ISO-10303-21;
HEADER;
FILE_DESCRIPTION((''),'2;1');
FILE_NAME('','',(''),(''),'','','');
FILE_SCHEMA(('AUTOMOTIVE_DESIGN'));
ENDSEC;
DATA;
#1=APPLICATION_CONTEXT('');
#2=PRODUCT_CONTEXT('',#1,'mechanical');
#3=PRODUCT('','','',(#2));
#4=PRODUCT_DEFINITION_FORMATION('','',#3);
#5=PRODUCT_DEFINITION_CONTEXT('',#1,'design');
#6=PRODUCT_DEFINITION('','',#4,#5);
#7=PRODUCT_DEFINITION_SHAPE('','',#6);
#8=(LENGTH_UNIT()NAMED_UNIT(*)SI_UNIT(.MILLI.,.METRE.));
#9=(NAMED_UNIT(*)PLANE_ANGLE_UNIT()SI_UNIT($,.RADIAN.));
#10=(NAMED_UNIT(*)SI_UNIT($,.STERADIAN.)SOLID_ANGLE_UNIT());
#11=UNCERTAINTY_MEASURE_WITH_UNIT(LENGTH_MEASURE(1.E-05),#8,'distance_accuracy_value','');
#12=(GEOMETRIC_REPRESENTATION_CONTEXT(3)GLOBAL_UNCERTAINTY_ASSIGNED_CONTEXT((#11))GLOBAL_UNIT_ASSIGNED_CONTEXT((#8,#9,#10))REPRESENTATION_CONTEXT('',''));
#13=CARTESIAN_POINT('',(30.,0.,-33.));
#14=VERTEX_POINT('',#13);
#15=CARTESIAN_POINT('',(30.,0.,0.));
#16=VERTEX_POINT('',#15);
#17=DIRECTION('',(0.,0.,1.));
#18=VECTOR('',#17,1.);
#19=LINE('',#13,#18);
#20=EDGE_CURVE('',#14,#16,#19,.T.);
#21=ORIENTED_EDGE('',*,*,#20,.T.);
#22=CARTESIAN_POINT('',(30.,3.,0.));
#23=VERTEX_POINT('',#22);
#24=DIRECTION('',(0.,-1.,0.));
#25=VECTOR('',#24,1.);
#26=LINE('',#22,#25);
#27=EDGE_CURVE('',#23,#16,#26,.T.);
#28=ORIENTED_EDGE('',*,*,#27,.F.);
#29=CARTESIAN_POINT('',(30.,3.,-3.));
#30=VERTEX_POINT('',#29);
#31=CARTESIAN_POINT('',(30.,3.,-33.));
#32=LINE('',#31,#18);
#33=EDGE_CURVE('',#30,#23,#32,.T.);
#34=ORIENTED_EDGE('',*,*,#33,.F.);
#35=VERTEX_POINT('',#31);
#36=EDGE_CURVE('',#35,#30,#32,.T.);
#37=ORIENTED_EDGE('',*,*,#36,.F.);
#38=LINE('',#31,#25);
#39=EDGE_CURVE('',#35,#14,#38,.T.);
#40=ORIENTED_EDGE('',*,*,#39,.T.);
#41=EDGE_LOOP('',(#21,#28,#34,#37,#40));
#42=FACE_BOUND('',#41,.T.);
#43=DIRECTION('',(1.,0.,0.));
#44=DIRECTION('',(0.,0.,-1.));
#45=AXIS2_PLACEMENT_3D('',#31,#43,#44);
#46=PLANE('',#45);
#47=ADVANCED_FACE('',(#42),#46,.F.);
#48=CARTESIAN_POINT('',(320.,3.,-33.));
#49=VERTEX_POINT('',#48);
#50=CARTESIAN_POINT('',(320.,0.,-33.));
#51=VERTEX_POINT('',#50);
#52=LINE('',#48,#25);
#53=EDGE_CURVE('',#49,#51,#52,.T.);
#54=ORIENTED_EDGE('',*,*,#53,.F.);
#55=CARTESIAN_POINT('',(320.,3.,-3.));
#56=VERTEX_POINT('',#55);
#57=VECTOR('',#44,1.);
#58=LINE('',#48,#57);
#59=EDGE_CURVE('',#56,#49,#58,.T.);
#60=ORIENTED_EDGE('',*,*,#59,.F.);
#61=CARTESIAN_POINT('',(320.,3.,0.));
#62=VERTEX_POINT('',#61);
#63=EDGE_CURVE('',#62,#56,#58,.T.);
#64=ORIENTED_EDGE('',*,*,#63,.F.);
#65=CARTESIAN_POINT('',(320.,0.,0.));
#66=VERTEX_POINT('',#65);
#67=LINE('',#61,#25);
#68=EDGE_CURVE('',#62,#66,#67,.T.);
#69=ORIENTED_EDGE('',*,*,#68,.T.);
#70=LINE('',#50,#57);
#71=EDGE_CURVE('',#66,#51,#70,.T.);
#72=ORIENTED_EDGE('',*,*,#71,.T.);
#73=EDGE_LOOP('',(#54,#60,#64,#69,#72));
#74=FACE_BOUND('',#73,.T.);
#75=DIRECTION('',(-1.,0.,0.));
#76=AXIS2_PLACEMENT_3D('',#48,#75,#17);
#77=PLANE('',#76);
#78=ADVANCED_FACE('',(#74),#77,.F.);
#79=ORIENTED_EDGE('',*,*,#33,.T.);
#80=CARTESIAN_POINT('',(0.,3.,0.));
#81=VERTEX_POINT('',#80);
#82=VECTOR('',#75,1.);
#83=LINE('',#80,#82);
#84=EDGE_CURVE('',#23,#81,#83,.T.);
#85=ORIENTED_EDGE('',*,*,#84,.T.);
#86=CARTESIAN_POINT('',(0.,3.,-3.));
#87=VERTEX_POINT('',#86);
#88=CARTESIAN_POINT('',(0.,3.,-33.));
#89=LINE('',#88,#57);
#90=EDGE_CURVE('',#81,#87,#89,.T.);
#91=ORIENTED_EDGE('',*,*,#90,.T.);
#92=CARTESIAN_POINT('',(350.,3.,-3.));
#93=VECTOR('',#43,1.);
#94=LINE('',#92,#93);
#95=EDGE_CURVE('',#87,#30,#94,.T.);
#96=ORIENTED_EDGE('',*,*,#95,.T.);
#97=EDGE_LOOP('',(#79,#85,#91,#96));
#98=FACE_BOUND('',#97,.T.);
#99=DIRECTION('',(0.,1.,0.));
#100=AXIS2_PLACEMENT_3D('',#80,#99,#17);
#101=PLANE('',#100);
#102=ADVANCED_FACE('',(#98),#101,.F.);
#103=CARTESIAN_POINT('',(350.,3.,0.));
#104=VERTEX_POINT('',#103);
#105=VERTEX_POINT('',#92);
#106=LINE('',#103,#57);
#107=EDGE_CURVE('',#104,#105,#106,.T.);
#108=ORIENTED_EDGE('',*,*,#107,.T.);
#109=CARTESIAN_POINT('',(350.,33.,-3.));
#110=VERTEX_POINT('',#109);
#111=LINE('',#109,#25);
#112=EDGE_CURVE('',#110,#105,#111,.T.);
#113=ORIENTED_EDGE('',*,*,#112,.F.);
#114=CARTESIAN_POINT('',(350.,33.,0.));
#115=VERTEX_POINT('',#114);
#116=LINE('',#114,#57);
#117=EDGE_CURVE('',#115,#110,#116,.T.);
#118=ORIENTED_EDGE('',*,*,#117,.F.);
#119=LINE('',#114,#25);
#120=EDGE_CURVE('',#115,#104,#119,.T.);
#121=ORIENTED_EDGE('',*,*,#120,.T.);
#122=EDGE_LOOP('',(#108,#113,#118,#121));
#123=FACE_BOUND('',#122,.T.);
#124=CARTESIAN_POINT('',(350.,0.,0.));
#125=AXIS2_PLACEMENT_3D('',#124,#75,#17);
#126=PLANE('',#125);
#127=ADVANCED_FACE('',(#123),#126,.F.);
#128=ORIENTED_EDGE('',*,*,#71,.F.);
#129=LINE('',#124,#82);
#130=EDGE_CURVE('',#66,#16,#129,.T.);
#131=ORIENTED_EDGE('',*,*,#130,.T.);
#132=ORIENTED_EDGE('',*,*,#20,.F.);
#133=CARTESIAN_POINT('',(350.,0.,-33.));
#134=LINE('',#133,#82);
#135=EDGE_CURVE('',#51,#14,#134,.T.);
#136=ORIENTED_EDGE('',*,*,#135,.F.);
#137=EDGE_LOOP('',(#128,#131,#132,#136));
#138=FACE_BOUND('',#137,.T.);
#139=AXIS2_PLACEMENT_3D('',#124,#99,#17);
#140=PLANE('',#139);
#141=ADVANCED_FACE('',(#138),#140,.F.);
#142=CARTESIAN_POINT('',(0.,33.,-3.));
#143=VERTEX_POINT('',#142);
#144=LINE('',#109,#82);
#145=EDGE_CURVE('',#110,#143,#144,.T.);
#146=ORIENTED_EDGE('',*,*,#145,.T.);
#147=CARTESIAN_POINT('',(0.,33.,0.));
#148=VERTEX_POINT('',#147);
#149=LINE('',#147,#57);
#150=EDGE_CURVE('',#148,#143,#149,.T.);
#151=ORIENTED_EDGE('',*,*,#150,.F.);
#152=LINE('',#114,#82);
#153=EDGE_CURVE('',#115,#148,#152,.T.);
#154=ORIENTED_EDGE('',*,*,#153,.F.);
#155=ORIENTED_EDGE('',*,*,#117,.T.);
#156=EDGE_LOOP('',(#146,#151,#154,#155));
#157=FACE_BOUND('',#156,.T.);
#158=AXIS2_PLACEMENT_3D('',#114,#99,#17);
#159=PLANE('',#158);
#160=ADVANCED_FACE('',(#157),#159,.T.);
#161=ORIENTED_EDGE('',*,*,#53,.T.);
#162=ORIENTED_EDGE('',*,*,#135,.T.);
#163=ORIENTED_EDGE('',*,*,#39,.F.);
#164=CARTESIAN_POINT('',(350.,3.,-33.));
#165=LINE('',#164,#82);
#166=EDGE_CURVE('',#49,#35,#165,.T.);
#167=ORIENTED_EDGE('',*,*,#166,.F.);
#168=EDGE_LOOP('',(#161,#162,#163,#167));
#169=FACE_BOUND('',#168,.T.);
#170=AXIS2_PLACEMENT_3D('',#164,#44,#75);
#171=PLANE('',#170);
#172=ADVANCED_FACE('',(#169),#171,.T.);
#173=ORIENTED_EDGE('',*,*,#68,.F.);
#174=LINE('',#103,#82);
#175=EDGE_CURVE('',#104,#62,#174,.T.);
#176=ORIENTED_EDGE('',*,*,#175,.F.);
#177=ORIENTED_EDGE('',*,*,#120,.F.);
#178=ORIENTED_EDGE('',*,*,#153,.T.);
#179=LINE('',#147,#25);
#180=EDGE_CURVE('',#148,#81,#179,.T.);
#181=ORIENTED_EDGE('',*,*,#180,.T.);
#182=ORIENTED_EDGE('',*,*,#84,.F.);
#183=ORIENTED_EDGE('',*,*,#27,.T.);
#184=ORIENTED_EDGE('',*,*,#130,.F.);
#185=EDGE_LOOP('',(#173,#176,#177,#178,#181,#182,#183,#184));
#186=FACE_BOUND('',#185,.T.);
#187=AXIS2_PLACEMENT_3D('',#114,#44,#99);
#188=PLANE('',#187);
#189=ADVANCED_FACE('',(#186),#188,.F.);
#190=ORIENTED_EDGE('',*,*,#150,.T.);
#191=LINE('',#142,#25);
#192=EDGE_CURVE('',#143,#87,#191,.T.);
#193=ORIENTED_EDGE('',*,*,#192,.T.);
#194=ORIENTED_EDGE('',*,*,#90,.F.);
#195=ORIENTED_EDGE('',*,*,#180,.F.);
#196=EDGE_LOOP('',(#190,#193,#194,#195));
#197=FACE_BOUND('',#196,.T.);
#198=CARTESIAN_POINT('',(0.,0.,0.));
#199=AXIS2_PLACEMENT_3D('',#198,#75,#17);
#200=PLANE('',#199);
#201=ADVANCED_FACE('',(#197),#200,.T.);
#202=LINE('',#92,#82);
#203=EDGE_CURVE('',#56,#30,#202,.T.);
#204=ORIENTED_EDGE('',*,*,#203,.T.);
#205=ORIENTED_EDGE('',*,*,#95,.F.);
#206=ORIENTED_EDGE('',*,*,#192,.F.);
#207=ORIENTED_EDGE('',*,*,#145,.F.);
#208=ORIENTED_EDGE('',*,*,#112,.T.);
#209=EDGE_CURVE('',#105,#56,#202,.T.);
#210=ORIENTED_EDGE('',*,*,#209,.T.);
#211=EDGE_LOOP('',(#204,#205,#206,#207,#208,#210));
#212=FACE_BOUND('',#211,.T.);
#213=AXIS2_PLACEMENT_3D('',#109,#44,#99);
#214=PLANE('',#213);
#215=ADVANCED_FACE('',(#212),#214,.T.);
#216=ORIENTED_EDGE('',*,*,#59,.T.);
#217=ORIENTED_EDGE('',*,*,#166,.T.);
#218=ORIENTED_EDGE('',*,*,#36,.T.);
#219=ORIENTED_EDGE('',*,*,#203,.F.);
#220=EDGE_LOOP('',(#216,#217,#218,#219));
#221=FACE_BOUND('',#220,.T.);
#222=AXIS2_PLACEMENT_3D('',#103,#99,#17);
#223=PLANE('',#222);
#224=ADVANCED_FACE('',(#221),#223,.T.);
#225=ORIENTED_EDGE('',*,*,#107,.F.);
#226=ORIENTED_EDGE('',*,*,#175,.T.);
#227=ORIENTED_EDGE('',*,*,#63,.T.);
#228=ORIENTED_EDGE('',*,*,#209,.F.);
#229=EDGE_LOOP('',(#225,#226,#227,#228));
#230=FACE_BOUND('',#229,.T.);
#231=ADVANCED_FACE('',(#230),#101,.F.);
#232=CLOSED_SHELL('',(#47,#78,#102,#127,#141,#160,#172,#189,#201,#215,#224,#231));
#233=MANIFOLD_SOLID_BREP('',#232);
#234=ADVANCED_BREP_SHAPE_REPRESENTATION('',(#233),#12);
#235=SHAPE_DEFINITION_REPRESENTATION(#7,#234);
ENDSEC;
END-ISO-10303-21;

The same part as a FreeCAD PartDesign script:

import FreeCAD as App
import Part
import Sketcher
Q = App.Units.Quantity


def add_polygon(sketch, points):
    """Adds a closed chain of lines whose ends are joined by coincident constraints."""
    first, n = sketch.GeometryCount, len(points)
    for a, b in zip(points, points[1:] + points[:1]):
        sketch.addGeometry(Part.LineSegment(App.Vector(*a, 0), App.Vector(*b, 0)), False)
    for i in range(n):
        sketch.addConstraint(Sketcher.Constraint("Coincident", first + i, 2, first + (i + 1) % n, 1))

doc = App.newDocument("Part")
body = doc.addObject("PartDesign::Body", "Body")

# Sketch on YZ plane
sketch1 = body.newObject("Sketcher::SketchObject", "Sketch")
sketch1.AttachmentSupport = (doc.getObject("YZ_Plane"), [""])
sketch1.MapMode = "FlatFace"
add_polygon(sketch1, [(33, 0), (0, 0), (0, -33), (3, -33), (3, -3), (33, -3)])  # lines 0-5
sketch1.addConstraint([
    Sketcher.Constraint("Horizontal", 0),
    Sketcher.Constraint("Vertical", 1),
    Sketcher.Constraint("Horizontal", 2),
    Sketcher.Constraint("Vertical", 3),
    Sketcher.Constraint("Horizontal", 4),
    Sketcher.Constraint("Vertical", 5),
    Sketcher.Constraint("Coincident", 0, 2, -1, 1),
    Sketcher.Constraint("Equal", 0, 1),
    Sketcher.Constraint("Equal", 4, 3),
    Sketcher.Constraint("DistanceX", 0, 2, 0, 1, Q("33 mm")),
    Sketcher.Constraint("DistanceX", 2, 1, 2, 2, Q("3 mm")),
])
pad1 = body.newObject("PartDesign::Pad", "Pad")
pad1.Profile = sketch1
pad1.Length = 350

# Sketch on XZ plane
sketch2 = body.newObject("Sketcher::SketchObject", "Sketch001")
sketch2.AttachmentSupport = (doc.getObject("XZ_Plane"), [""])
sketch2.MapMode = "FlatFace"
add_polygon(sketch2, [(0, 0), (0, -33), (30, -33), (30, 0)])  # lines 0-3
add_polygon(sketch2, [(320, 0), (320, -33), (350, -33), (350, 0)])  # lines 4-7
sketch2.addConstraint([
    Sketcher.Constraint("Vertical", 0),
    Sketcher.Constraint("Horizontal", 1),
    Sketcher.Constraint("Vertical", 2),
    Sketcher.Constraint("Horizontal", 3),
    Sketcher.Constraint("Vertical", 4),
    Sketcher.Constraint("Horizontal", 5),
    Sketcher.Constraint("Vertical", 6),
    Sketcher.Constraint("Horizontal", 7),
    Sketcher.Constraint("Coincident", 3, 2, -1, 1),
    Sketcher.Constraint("PointOnObject", 6, 2, -1),
    Sketcher.Constraint("Horizontal", 1, 2, 4, 2),
    Sketcher.Constraint("Equal", 3, 5),
    Sketcher.Constraint("DistanceX", 1, 1, 1, 2, Q("30 mm")),
    Sketcher.Constraint("DistanceY", 0, 2, 0, 1, Q("33 mm")),
    Sketcher.Constraint("DistanceX", -1, 1, 4, 2, Q("320 mm")),
])
pocket1 = body.newObject("PartDesign::Pocket", "Pocket")
pocket1.Profile = sketch2
pocket1.Length = 3

doc.recompute()
